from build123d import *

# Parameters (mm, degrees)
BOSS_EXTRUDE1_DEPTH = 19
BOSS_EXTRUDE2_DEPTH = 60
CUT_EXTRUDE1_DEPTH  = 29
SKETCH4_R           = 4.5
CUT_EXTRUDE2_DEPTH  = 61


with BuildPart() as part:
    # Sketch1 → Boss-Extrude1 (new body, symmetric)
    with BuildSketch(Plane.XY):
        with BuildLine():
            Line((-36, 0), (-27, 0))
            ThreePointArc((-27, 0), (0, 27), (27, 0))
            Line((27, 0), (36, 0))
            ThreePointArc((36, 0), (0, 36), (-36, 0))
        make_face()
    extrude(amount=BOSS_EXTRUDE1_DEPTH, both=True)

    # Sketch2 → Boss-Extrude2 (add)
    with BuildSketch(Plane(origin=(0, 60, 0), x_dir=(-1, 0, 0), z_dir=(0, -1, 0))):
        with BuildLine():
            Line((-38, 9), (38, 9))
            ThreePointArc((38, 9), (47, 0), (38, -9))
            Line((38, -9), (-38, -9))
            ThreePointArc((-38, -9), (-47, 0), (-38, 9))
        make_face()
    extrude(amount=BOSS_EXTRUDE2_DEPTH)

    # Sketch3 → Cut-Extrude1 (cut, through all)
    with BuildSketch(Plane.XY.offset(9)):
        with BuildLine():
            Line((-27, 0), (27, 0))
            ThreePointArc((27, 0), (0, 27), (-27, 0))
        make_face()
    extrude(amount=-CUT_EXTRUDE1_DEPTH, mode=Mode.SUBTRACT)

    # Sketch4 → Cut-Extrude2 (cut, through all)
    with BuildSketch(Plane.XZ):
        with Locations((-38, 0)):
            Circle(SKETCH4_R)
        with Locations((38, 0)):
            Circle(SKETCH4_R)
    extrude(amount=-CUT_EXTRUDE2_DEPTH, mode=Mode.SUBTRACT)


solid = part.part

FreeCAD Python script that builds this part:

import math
import FreeCAD as App
import Part
import Sketcher

doc = App.newDocument("Part")
params = doc.addObject("Spreadsheet::Sheet", "Params")
for row, (alias, value) in enumerate([
    ("sketch1_radius", "27 mm"),
    ("sketch1_radius2", "36 mm"),
    ("pad1_length", "38 mm"),
    ("sketch2_radius", "9 mm"),
    ("sketch2_width", "76 mm"),
    ("pad2_length", "60 mm"),
    ("sketch3_radius", "27 mm"),
    ("sketch4_diameter", "9 mm"),
], start=1):
    params.set(f"A{row}", alias)
    params.set(f"B{row}", "=" + value)
    params.setAlias(f"B{row}", alias)

body = doc.addObject("PartDesign::Body", "Body")

# Sketch on XY plane
sketch1 = body.newObject("Sketcher::SketchObject", "Sketch")
sketch1.AttachmentSupport = (doc.getObject("XY_Plane"), [""])
sketch1.MapMode = "FlatFace"
sketch1.addGeometry(Part.LineSegment(App.Vector(-36, 0, 0), App.Vector(-27, 0, 0)), False)
sketch1.addGeometry(Part.ArcOfCircle(Part.Circle(App.Vector(0, 0, 0), App.Vector(0, 0, 1), 27), math.radians(0), math.radians(180)), False)
sketch1.addGeometry(Part.LineSegment(App.Vector(27, 0, 0), App.Vector(36, 0, 0)), False)
sketch1.addGeometry(Part.ArcOfCircle(Part.Circle(App.Vector(0, 0, 0), App.Vector(0, 0, 1), 36), math.radians(0), math.radians(180)), False)
sketch1.addConstraint(Sketcher.Constraint("Coincident", 0, 2, 1, 2))
sketch1.addConstraint(Sketcher.Constraint("Coincident", 1, 1, 2, 1))
sketch1.addConstraint(Sketcher.Constraint("Coincident", 2, 2, 3, 1))
sketch1.addConstraint(Sketcher.Constraint("Coincident", 3, 2, 0, 1))
sketch1.addConstraint(Sketcher.Constraint("Horizontal", 0))
sketch1.addConstraint(Sketcher.Constraint("Horizontal", 2))
sketch1.addConstraint(Sketcher.Constraint("Coincident", 1, 3, -1, 1))
sketch1.addConstraint(Sketcher.Constraint("Coincident", 3, 3, -1, 1))
sketch1.addConstraint(Sketcher.Constraint("PointOnObject", 0, 2, -1))
sketch1.addConstraint(Sketcher.Constraint("PointOnObject", 1, 1, -1))
sketch1.addConstraint(Sketcher.Constraint("Radius", 1, 27.0))
sketch1.addConstraint(Sketcher.Constraint("Radius", 3, 36.0))
sketch1.setExpression("Constraints[10]", "Params.sketch1_radius")
sketch1.setExpression("Constraints[11]", "Params.sketch1_radius2")
pad1 = body.newObject("PartDesign::Pad", "Pad")
pad1.Profile = sketch1
pad1.setExpression("Length", "Params.pad1_length")
pad1.Midplane = True

# Sketch on XZ plane
sketch2 = body.newObject("Sketcher::SketchObject", "Sketch001")
sketch2.AttachmentSupport = (doc.getObject("XZ_Plane"), [""])
sketch2.MapMode = "FlatFace"
sketch2.AttachmentOffset = App.Placement(App.Vector(0, 0, -60), App.Rotation())
sketch2.addGeometry(Part.LineSegment(App.Vector(-38, -9, 0), App.Vector(38, -9, 0)), False)
sketch2.addGeometry(Part.ArcOfCircle(Part.Circle(App.Vector(38, 0, 0), App.Vector(0, 0, 1), 9), math.radians(-90), math.radians(90)), False)
sketch2.addGeometry(Part.LineSegment(App.Vector(38, 9, 0), App.Vector(-38, 9, 0)), False)
sketch2.addGeometry(Part.ArcOfCircle(Part.Circle(App.Vector(-38, 0, 0), App.Vector(0, 0, 1), 9), math.radians(90), math.radians(270)), False)
sketch2.addConstraint(Sketcher.Constraint("Tangent", 0, 2, 1, 1))
sketch2.addConstraint(Sketcher.Constraint("Tangent", 1, 2, 2, 1))
sketch2.addConstraint(Sketcher.Constraint("Tangent", 2, 2, 3, 1))
sketch2.addConstraint(Sketcher.Constraint("Tangent", 3, 2, 0, 1))
sketch2.addConstraint(Sketcher.Constraint("Horizontal", 0))
sketch2.addConstraint(Sketcher.Constraint("Horizontal", 2))
sketch2.addConstraint(Sketcher.Constraint("Symmetric", 1, 3, 3, 3, -1, 1))
sketch2.addConstraint(Sketcher.Constraint("Radius", 1, 9.0))
sketch2.addConstraint(Sketcher.Constraint("DistanceX", 0, 1, 0, 2, 76.0))
sketch2.setExpression("Constraints[7]", "Params.sketch2_radius")
sketch2.setExpression("Constraints[8]", "Params.sketch2_width")
pad2 = body.newObject("PartDesign::Pad", "Pad001")
pad2.Profile = sketch2
pad2.setExpression("Length", "Params.pad2_length")

# Sketch on XY plane
sketch3 = body.newObject("Sketcher::SketchObject", "Sketch002")
sketch3.AttachmentSupport = (doc.getObject("XY_Plane"), [""])
sketch3.MapMode = "FlatFace"
sketch3.AttachmentOffset = App.Placement(App.Vector(0, 0, 9), App.Rotation())
sketch3.addGeometry(Part.LineSegment(App.Vector(-27, 0, 0), App.Vector(27, 0, 0)), False)
sketch3.addGeometry(Part.ArcOfCircle(Part.Circle(App.Vector(0, 0, 0), App.Vector(0, 0, 1), 27), math.radians(0), math.radians(180)), False)
sketch3.addConstraint(Sketcher.Constraint("Coincident", 0, 1, 1, 2))
sketch3.addConstraint(Sketcher.Constraint("Coincident", 1, 1, 0, 2))
sketch3.addConstraint(Sketcher.Constraint("Horizontal", 0))
sketch3.addConstraint(Sketcher.Constraint("Coincident", 1, 3, -1, 1))
sketch3.addConstraint(Sketcher.Constraint("PointOnObject", 0, 1, -1))
sketch3.addConstraint(Sketcher.Constraint("Radius", 1, 27.0))
sketch3.setExpression("Constraints[5]", "Params.sketch3_radius")
pocket1 = body.newObject("PartDesign::Pocket", "Pocket")
pocket1.Profile = sketch3
pocket1.Type = "ThroughAll"

# Sketch on XZ plane
sketch4 = body.newObject("Sketcher::SketchObject", "Sketch003")
sketch4.AttachmentSupport = (doc.getObject("XZ_Plane"), [""])
sketch4.MapMode = "FlatFace"
sketch4.addGeometry(Part.Circle(App.Vector(-38, 0, 0), App.Vector(0, 0, 1), 4.5), False)
sketch4.addGeometry(Part.Circle(App.Vector(38, 0, 0), App.Vector(0, 0, 1), 4.5), False)
sketch4.addConstraint(Sketcher.Constraint("Equal", 0, 1))
sketch4.addConstraint(Sketcher.Constraint("Symmetric", 0, 3, 1, 3, -1, 1))
sketch4.addConstraint(Sketcher.Constraint("PointOnObject", 0, 3, -1))
sketch4.addConstraint(Sketcher.Constraint("Diameter", 0, 9.0))
sketch4.addConstraint(Sketcher.Constraint("DistanceX", 0, 3, -1, 1, 38.0))
sketch4.setExpression("Constraints[3]", "Params.sketch4_diameter")
pocket2 = body.newObject("PartDesign::Pocket", "Pocket001")
pocket2.Profile = sketch4
pocket2.Type = "ThroughAll"

doc.recompute()
